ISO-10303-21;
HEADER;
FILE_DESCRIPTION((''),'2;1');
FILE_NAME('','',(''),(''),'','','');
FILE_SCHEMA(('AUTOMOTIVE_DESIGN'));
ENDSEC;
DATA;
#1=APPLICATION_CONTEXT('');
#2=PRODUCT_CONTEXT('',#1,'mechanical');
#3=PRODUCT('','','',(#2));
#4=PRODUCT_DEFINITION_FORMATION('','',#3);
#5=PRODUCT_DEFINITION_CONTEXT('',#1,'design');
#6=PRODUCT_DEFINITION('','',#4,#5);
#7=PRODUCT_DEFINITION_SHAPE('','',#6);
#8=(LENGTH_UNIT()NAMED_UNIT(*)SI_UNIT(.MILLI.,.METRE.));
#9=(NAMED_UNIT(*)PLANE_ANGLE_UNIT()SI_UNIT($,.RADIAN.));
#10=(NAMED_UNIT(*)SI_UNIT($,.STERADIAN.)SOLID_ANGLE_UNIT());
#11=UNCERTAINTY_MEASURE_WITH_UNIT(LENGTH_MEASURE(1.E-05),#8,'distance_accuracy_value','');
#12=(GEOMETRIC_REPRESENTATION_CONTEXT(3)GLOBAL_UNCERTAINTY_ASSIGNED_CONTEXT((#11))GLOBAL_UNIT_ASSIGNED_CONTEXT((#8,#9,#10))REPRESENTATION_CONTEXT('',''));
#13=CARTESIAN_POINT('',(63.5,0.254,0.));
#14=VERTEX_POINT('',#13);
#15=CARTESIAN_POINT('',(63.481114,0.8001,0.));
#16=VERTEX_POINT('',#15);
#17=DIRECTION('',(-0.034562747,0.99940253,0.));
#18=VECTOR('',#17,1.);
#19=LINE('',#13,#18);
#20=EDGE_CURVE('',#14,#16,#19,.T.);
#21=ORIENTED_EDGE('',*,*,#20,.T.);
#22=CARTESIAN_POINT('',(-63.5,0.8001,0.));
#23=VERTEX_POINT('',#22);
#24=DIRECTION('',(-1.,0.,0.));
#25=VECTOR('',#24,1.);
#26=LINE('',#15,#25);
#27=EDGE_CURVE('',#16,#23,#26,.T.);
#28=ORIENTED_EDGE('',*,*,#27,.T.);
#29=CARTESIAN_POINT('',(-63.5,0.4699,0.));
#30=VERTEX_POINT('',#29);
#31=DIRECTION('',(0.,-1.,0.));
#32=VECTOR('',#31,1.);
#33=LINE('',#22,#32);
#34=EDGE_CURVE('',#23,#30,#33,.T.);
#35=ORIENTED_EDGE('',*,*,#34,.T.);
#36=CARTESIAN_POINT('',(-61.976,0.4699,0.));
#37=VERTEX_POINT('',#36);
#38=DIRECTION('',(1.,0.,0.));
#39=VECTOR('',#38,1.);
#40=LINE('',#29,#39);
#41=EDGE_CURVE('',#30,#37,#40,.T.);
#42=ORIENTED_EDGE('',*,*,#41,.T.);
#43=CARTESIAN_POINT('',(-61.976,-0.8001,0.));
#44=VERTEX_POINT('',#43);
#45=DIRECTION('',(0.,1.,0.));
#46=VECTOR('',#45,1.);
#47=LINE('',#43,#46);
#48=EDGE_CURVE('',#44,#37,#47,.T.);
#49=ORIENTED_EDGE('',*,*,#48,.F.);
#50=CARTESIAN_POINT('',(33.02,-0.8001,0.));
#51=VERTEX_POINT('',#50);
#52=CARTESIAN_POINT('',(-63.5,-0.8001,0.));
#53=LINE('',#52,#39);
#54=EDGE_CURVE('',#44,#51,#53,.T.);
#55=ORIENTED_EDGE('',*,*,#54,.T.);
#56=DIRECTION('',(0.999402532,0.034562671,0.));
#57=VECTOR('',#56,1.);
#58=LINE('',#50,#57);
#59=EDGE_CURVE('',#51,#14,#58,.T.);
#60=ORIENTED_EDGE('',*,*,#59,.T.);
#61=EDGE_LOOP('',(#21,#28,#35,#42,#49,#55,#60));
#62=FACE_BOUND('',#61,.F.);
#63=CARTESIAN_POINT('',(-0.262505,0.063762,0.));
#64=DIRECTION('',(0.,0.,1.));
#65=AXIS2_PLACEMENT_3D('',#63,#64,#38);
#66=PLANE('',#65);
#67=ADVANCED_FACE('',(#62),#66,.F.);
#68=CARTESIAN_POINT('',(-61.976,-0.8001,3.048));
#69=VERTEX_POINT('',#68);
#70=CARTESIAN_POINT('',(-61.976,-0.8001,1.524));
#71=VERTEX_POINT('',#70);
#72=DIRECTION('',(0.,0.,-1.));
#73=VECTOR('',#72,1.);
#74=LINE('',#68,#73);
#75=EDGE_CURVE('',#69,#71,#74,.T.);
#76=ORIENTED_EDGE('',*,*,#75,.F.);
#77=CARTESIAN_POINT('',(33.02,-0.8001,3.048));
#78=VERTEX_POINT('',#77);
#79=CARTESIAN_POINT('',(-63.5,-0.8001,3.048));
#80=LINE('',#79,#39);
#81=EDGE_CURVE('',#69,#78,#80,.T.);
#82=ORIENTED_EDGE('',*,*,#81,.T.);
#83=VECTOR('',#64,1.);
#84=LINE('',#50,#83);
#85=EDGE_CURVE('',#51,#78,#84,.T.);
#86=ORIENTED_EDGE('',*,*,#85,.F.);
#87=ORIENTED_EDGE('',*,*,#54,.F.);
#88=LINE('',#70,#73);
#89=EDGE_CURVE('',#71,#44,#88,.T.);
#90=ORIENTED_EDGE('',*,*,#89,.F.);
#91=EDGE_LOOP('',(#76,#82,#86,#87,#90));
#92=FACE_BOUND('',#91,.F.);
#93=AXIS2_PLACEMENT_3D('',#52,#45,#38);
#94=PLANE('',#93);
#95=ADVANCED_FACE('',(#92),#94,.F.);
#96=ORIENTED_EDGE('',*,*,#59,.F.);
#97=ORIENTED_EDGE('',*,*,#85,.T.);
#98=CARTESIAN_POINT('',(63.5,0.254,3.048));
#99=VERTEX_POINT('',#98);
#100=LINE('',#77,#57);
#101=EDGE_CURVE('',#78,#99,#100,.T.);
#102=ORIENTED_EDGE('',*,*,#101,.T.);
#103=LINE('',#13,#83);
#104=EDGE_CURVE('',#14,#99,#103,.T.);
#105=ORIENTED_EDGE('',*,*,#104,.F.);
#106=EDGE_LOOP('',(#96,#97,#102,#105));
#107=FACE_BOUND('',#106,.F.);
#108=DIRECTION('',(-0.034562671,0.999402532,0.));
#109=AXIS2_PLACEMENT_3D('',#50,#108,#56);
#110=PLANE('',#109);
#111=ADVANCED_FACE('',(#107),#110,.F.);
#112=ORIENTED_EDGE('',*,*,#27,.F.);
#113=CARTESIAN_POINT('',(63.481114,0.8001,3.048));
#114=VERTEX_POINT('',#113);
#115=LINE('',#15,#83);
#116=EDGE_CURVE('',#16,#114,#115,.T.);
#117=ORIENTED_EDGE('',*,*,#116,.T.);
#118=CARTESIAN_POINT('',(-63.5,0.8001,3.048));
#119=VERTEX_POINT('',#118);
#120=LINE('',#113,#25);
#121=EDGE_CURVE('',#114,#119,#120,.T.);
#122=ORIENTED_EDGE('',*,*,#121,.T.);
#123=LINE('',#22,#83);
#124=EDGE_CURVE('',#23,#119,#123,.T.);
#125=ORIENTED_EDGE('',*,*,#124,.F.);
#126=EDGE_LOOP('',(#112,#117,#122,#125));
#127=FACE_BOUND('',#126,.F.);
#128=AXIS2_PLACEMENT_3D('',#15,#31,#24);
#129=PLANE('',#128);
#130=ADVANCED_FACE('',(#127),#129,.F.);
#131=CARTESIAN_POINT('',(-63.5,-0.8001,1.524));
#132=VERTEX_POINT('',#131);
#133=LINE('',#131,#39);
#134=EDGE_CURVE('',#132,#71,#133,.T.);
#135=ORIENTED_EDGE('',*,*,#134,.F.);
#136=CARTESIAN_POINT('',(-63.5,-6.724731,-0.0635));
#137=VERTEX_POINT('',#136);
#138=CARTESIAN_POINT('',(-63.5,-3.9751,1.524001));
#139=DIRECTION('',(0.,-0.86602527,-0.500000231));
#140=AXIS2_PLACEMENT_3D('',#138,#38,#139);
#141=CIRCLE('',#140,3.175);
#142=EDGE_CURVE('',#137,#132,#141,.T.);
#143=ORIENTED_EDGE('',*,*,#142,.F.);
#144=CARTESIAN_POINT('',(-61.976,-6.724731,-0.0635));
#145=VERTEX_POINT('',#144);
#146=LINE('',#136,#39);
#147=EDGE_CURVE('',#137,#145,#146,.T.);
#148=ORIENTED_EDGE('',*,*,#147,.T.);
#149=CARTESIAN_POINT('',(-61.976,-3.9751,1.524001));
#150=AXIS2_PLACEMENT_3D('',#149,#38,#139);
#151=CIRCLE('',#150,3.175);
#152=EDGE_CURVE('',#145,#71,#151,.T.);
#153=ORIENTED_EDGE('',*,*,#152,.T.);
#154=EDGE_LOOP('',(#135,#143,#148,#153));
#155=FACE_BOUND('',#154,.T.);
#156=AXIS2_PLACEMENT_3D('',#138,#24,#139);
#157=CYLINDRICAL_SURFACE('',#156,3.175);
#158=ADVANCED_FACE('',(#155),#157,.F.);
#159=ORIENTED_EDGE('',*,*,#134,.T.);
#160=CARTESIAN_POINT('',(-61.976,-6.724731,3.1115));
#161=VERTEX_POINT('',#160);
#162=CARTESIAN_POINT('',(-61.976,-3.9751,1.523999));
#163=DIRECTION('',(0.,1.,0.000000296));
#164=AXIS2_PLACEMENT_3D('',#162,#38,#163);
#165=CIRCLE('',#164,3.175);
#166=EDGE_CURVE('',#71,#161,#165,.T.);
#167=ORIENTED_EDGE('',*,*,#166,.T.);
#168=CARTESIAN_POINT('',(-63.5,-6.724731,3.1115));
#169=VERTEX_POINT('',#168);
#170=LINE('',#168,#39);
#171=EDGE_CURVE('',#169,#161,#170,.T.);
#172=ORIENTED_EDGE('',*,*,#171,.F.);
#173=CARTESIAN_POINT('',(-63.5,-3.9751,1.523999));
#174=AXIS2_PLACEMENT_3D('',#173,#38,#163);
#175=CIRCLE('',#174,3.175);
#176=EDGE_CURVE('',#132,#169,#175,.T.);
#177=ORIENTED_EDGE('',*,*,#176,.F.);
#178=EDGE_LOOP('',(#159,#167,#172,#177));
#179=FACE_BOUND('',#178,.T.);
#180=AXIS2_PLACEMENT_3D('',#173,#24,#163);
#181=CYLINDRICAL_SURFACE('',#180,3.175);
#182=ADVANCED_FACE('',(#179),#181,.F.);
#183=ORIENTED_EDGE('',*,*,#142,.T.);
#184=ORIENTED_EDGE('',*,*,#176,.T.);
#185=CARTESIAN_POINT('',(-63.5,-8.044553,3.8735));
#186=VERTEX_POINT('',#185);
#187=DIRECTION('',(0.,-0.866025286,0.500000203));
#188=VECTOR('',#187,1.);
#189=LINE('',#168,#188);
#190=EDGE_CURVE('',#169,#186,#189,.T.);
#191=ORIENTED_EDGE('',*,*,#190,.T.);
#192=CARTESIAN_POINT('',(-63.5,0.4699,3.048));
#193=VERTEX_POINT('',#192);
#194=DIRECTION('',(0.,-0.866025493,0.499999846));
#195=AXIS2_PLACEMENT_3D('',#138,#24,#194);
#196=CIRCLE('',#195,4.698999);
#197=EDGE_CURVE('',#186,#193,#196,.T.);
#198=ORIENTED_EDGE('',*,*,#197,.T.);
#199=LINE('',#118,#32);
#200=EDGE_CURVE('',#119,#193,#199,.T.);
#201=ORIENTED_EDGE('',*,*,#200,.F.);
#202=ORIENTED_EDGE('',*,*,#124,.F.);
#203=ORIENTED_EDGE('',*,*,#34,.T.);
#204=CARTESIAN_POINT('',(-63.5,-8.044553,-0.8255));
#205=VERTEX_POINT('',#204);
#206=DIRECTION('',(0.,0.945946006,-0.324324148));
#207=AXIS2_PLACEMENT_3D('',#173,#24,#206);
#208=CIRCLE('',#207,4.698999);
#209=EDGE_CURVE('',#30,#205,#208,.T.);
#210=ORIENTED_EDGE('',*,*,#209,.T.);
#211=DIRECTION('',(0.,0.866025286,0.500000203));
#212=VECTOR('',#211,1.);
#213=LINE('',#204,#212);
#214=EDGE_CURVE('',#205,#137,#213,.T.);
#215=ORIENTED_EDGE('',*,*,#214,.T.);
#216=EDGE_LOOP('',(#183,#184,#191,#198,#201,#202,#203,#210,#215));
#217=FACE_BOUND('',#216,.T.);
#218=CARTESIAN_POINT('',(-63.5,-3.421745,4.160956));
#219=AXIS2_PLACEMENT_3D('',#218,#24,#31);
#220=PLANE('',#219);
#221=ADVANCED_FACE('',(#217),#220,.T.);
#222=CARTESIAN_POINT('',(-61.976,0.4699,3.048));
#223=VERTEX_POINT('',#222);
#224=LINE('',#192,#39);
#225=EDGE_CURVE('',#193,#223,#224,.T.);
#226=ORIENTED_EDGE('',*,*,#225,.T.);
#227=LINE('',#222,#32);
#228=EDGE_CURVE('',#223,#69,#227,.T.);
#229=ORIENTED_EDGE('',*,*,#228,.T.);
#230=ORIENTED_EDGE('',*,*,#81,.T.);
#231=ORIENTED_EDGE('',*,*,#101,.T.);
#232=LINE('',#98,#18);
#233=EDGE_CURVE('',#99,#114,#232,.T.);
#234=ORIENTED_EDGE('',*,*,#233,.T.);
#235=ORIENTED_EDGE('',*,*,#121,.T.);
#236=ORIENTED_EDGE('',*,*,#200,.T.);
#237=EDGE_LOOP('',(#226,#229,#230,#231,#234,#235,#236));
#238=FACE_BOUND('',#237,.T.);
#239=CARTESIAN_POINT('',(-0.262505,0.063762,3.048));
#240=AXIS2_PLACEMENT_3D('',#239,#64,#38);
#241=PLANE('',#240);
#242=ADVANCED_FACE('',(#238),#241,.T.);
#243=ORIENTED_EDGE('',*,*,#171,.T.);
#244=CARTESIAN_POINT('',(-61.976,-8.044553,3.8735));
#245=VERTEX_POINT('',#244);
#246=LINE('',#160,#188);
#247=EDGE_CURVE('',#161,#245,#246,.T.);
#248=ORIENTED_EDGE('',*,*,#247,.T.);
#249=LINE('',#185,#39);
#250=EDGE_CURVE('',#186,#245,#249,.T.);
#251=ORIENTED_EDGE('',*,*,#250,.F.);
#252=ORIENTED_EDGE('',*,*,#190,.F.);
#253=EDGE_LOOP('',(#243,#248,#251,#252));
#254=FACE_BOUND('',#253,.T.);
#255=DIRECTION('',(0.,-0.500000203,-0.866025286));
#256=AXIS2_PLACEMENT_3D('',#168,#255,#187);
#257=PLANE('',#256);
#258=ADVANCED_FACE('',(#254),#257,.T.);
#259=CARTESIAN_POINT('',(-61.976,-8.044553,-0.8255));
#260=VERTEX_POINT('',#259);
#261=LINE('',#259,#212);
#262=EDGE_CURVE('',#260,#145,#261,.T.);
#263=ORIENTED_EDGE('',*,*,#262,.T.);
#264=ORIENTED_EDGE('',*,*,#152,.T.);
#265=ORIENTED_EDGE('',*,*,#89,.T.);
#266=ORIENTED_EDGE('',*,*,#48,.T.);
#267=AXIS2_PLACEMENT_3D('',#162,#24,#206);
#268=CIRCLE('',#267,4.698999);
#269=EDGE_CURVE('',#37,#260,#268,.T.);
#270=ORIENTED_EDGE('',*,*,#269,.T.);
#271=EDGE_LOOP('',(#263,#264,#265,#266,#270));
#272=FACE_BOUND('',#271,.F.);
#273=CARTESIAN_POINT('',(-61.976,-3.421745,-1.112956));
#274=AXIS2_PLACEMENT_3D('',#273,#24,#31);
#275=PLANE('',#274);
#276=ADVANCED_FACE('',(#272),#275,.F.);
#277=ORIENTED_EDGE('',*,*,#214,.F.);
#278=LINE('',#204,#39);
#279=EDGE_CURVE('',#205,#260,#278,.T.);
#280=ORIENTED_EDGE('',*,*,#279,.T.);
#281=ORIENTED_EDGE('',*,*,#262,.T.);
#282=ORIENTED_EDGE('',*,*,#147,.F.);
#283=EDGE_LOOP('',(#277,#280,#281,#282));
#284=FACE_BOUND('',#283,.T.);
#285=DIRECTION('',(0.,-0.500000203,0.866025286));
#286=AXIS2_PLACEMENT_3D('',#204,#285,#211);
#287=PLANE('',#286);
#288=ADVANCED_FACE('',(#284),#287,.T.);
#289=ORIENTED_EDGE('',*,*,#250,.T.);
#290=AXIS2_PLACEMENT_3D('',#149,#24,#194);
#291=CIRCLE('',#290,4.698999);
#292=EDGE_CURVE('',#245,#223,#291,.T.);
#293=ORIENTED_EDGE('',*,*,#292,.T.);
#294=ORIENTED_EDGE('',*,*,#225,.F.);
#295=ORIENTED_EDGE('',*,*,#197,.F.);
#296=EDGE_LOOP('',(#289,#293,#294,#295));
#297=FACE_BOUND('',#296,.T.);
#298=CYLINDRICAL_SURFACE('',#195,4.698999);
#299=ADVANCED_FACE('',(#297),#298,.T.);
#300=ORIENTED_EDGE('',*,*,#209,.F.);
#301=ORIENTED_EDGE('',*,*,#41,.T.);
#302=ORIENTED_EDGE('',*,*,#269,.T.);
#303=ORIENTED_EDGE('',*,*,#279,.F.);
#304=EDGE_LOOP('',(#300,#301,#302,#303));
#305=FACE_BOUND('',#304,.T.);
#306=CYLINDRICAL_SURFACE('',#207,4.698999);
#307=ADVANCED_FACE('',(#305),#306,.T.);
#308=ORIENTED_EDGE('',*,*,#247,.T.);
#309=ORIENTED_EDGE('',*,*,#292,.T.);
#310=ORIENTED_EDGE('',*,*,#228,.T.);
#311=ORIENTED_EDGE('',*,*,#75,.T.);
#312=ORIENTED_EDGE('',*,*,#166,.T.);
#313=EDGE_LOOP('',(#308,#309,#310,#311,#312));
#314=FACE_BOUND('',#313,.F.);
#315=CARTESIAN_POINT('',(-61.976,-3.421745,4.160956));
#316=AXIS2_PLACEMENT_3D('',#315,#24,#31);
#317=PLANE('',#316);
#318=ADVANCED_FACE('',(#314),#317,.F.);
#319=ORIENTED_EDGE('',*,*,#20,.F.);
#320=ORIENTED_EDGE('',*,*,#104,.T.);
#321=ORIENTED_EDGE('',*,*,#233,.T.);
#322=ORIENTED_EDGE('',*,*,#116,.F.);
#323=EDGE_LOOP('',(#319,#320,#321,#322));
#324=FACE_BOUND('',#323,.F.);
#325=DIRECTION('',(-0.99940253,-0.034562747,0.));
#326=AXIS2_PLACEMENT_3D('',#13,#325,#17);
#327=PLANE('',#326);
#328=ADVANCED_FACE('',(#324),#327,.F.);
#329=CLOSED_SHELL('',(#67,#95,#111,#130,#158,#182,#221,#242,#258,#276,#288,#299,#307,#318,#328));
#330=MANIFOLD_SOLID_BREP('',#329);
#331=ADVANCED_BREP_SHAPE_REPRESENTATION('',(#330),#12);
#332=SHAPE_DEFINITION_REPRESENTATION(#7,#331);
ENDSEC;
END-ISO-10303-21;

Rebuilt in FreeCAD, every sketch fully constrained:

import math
import FreeCAD as App
import Part
import Sketcher
Q = App.Units.Quantity


def add_polygon(sketch, points):
    """Adds a closed chain of lines whose ends are joined by coincident constraints."""
    first, n = sketch.GeometryCount, len(points)
    for a, b in zip(points, points[1:] + points[:1]):
        sketch.addGeometry(Part.LineSegment(App.Vector(*a, 0), App.Vector(*b, 0)), False)
    for i in range(n):
        sketch.addConstraint(Sketcher.Constraint("Coincident", first + i, 2, first + (i + 1) % n, 1))

doc = App.newDocument("Part")
params = doc.addObject("Spreadsheet::Sheet", "Params")
for row, (alias, value) in enumerate([
    ("sketch1_width", "3.8 in"),
    ("sketch1_height", "0.063 in"),
    ("pad1_length", "0.12 in"),
    ("sketch2_radius", "0.125 in"),
    ("sketch2_radius2", "0.185 in"),
    ("sketch2_width", "0.05 in"),
    ("pad2_length", "0.06 in"),
], start=1):
    params.set(f"A{row}", alias)
    params.set(f"B{row}", "=" + value)
    params.setAlias(f"B{row}", alias)

body = doc.addObject("PartDesign::Body", "Body")

# Sketch on XY plane
sketch1 = doc.addObject("Sketcher::SketchObject", "Sketch")
body.addObject(sketch1)
sketch1.AttachmentSupport = (doc.XY_Plane, [""])
sketch1.MapMode = "FlatFace"
add_polygon(sketch1, [(63.5, 0.8), (-63.5, 0.8), (-63.5, -0.8), (33, -0.8), (63.5, 0.3)])  # lines 0-4
sketch1.addConstraint([
    Sketcher.Constraint("Horizontal", 0),
    Sketcher.Constraint("Vertical", 1),
    Sketcher.Constraint("Horizontal", 2),
    Sketcher.Constraint("Perpendicular", 3, 4),
    Sketcher.Constraint("DistanceX", 2, 1, 2, 2, Q("3.8 in")),
    Sketcher.Constraint("DistanceX", 0, 2, 3, 2, Q("5 in")),
    Sketcher.Constraint("DistanceX", 0, 2, -1, 1, Q("2.5 in")),
    Sketcher.Constraint("DistanceY", 1, 2, 1, 1, Q("0.063 in")),
    Sketcher.Constraint("DistanceY", -1, 1, 3, 2, Q("0.01 in")),
    Sketcher.Constraint("DistanceY", -1, 1, 0, 2, Q("0.0315 in")),
])
sketch1.setExpression("Constraints[9]", "Params.sketch1_width")
sketch1.setExpression("Constraints[12]", "Params.sketch1_height")
pad1 = doc.addObject("PartDesign::Pad", "Pad")
body.addObject(pad1)
pad1.Profile = sketch1
pad1.setExpression("Length", "Params.pad1_length")

# Sketch on YZ plane
sketch2 = doc.addObject("Sketcher::SketchObject", "Sketch001")
body.addObject(sketch2)
sketch2.AttachmentSupport = (doc.YZ_Plane, [""])
sketch2.MapMode = "FlatFace"
sketch2.AttachmentOffset = App.Placement(App.Vector(0, 0, -2.5 * 25.4), App.Rotation())
sketch2.addGeometry([
    Part.ArcOfCircle(Part.Circle(App.Vector(-4, 1.5, 0), App.Vector(0, 0, 1), 3.2), math.radians(0), math.radians(150)),  # 0
    Part.LineSegment(App.Vector(-6.7, 3.1, 0), App.Vector(-8, 3.9, 0)),  # 1
    Part.ArcOfCircle(Part.Circle(App.Vector(-4, 1.5, 0), App.Vector(0, 0, 1), 4.7), math.radians(19), math.radians(150)),  # 2
    Part.LineSegment(App.Vector(0.5, 3, 0), App.Vector(-0.8, 3, 0)),  # 3
    Part.LineSegment(App.Vector(-0.8, 3, 0), App.Vector(-0.8, 1.5, 0)),  # 4
    Part.ArcOfCircle(Part.Circle(App.Vector(-4, 1.5, 0), App.Vector(0, 0, 1), 3.2), math.radians(-150), math.radians(0)),  # 5
    Part.LineSegment(App.Vector(-0.8, 1.5, 0), App.Vector(-0.8, 0, 0)),  # 6
    Part.LineSegment(App.Vector(-0.8, 0, 0), App.Vector(0.5, 0, 0)),  # 7
    Part.ArcOfCircle(Part.Circle(App.Vector(-4, 1.5, 0), App.Vector(0, 0, 1), 4.7), math.radians(-150), math.radians(-19)),  # 8
    Part.LineSegment(App.Vector(-8, -0.8, 0), App.Vector(-6.7, -0.1, 0)),  # 9
], False)
sketch2.addConstraint([
    Sketcher.Constraint("Coincident", 0, 2, 1, 1),
    Sketcher.Constraint("Coincident", 1, 2, 2, 2),
    Sketcher.Constraint("Coincident", 2, 1, 3, 1),
    Sketcher.Constraint("Coincident", 3, 2, 4, 1),
    Sketcher.Constraint("Tangent", 4, 2, 0, 1),
    Sketcher.Constraint("Tangent", 5, 2, 6, 1),
    Sketcher.Constraint("Coincident", 6, 2, 7, 1),
    Sketcher.Constraint("Coincident", 7, 2, 8, 2),
    Sketcher.Constraint("Coincident", 8, 1, 9, 1),
    Sketcher.Constraint("Coincident", 9, 2, 5, 1),
    Sketcher.Constraint("Horizontal", 3),
    Sketcher.Constraint("Vertical", 4),
    Sketcher.Constraint("Vertical", 6),
    Sketcher.Constraint("Horizontal", 7),
    Sketcher.Constraint("Coincident", 2, 3, 0, 3),
    Sketcher.Constraint("Coincident", 5, 3, 0, 3),
    Sketcher.Constraint("Coincident", 8, 3, 0, 3),
    Sketcher.Constraint("Equal", 0, 5),
    Sketcher.Constraint("Equal", 2, 8),
    Sketcher.Constraint("PointOnObject", 6, 2, -1),
    Sketcher.Constraint("Vertical", 2, 1, 7, 2),
    Sketcher.Constraint("Vertical", 1, 2, 8, 1),
    Sketcher.Constraint("Vertical", 0, 2, 9, 2),
    Sketcher.Constraint("Angle", 1, Q("149.999987 deg")),
    Sketcher.Constraint("Radius", 0, Q("0.125 in")),
    Sketcher.Constraint("Radius", 2, Q("0.185 in")),
    Sketcher.Constraint("DistanceX", 3, 2, 3, 1, Q("0.05 in")),
    Sketcher.Constraint("DistanceY", 5, 3, 0, 2, Q("0.0625 in")),
    Sketcher.Constraint("DistanceX", 0, 3, -1, 1, Q("0.1565 in")),
])
sketch2.setExpression("Constraints[24]", "Params.sketch2_radius")
sketch2.setExpression("Constraints[25]", "Params.sketch2_radius2")
sketch2.setExpression("Constraints[26]", "Params.sketch2_width")
pad2 = doc.addObject("PartDesign::Pad", "Pad001")
body.addObject(pad2)
pad2.Profile = sketch2
pad2.setExpression("Length", "Params.pad2_length")

doc.recompute()
